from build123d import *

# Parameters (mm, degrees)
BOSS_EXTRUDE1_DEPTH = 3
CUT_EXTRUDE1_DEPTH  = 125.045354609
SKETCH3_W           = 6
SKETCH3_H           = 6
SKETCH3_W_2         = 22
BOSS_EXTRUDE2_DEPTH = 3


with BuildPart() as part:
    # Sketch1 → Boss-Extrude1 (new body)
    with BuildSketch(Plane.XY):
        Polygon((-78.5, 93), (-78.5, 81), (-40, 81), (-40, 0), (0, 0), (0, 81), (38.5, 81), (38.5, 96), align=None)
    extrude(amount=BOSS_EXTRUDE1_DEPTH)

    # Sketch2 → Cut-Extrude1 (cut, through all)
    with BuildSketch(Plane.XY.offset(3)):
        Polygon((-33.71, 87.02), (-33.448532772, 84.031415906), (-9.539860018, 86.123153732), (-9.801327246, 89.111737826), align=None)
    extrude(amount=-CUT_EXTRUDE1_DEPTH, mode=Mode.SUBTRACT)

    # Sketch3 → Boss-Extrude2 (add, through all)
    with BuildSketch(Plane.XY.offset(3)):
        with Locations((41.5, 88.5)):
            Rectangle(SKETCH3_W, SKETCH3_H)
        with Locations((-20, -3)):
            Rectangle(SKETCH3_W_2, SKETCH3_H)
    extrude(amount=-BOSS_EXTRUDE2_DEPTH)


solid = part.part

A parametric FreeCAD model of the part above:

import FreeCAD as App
import Part
import Sketcher

V = App.Vector
Q = App.Units.Quantity


def add_polygon(sketch, points):
    """Adds a closed chain of lines whose ends are joined by coincident constraints."""
    first, n = sketch.GeometryCount, len(points)
    for a, b in zip(points, points[1:] + points[:1]):
        sketch.addGeometry(Part.LineSegment(App.Vector(*a, 0), App.Vector(*b, 0)), False)
    for i in range(n):
        sketch.addConstraint(Sketcher.Constraint("Coincident", first + i, 2, first + (i + 1) % n, 1))

doc = App.newDocument("Part")
body = doc.addObject("PartDesign::Body", "Body")

# Sketch on XY plane
sketch1 = doc.addObject("Sketcher::SketchObject", "Sketch")
body.addObject(sketch1)
sketch1.AttachmentSupport = (doc.XY_Plane, [""])
sketch1.MapMode = "FlatFace"
add_polygon(sketch1, [(-78, 93), (-78, 81), (-40, 81), (-40, 0), (0, 0), (0, 81), (38, 81), (38, 96)])  # lines 0-7
sketch1.addConstraint(Sketcher.Constraint("Vertical", 0))
sketch1.addConstraint(Sketcher.Constraint("Horizontal", 1))
sketch1.addConstraint(Sketcher.Constraint("Vertical", 2))
sketch1.addConstraint(Sketcher.Constraint("Horizontal", 3))
sketch1.addConstraint(Sketcher.Constraint("Vertical", 4))
sketch1.addConstraint(Sketcher.Constraint("Horizontal", 5))
sketch1.addConstraint(Sketcher.Constraint("Vertical", 6))
sketch1.addConstraint(Sketcher.Constraint("Coincident", 3, 2, -1, 1))
sketch1.addConstraint(Sketcher.Constraint("Horizontal", 1, 2, 4, 2))
sketch1.addConstraint(Sketcher.Constraint("Equal", 1, 5))
sketch1.addConstraint(Sketcher.Constraint("DistanceX", 3, 1, 3, 2, Q("40 mm")))
sketch1.addConstraint(Sketcher.Constraint("DistanceY", 0, 2, 0, 1, Q("12 mm")))
sketch1.addConstraint(Sketcher.Constraint("DistanceY", 2, 2, 2, 1, Q("81 mm")))
sketch1.addConstraint(Sketcher.Constraint("DistanceY", 6, 1, 6, 2, Q("15 mm")))
sketch1.addConstraint(Sketcher.Constraint("DistanceX", 1, 1, 1, 2, Q("38.5 mm")))
pad1 = doc.addObject("PartDesign::Pad", "Pad")
body.addObject(pad1)
pad1.Profile = sketch1
pad1.Length = 3

# Sketch on XY plane
sketch2 = doc.addObject("Sketcher::SketchObject", "Sketch001")
body.addObject(sketch2)
sketch2.AttachmentSupport = (doc.XY_Plane, [""])
sketch2.MapMode = "FlatFace"
sketch2.AttachmentOffset = App.Placement(V(0, 0, 3), App.Rotation())
add_polygon(sketch2, [(-33.7, 87), (-33.4, 84), (-9.5, 86.1), (-9.8, 89.1)])  # lines 0-3
sketch2.addConstraint(Sketcher.Constraint("Perpendicular", 0, 1))
sketch2.addConstraint(Sketcher.Constraint("Perpendicular", 1, 2))
sketch2.addConstraint(Sketcher.Constraint("Perpendicular", 2, 3))
sketch2.addConstraint(Sketcher.Constraint("Angle", 0, Q("-85 deg")))
sketch2.addConstraint(Sketcher.Constraint("Distance", 0, Q("3 mm")))
sketch2.addConstraint(Sketcher.Constraint("Distance", 1, Q("24 mm")))
sketch2.addConstraint(Sketcher.Constraint("DistanceX", 3, 2, -1, 1, Q("33.71 mm")))
sketch2.addConstraint(Sketcher.Constraint("DistanceY", -1, 1, 3, 2, Q("87.02 mm")))
pocket1 = doc.addObject("PartDesign::Pocket", "Pocket")
body.addObject(pocket1)
pocket1.Profile = sketch2
pocket1.Type = "ThroughAll"

# Sketch on XY plane
sketch3 = doc.addObject("Sketcher::SketchObject", "Sketch002")
body.addObject(sketch3)
sketch3.AttachmentSupport = (doc.XY_Plane, [""])
sketch3.MapMode = "FlatFace"
sketch3.AttachmentOffset = App.Placement(V(0, 0, 3), App.Rotation())
add_polygon(sketch3, [(38, 92), (38, 86), (44, 86), (44, 92)])  # lines 0-3
add_polygon(sketch3, [(-31, 0), (-31, -6), (-9, -6), (-9, 0)])  # lines 4-7
sketch3.addConstraint(Sketcher.Constraint("Vertical", 0))
sketch3.addConstraint(Sketcher.Constraint("Horizontal", 1))
sketch3.addConstraint(Sketcher.Constraint("Vertical", 2))
sketch3.addConstraint(Sketcher.Constraint("Horizontal", 3))
sketch3.addConstraint(Sketcher.Constraint("Vertical", 4))
sketch3.addConstraint(Sketcher.Constraint("Horizontal", 5))
sketch3.addConstraint(Sketcher.Constraint("Vertical", 6))
sketch3.addConstraint(Sketcher.Constraint("Horizontal", 7))
sketch3.addConstraint(Sketcher.Constraint("PointOnObject", 6, 2, -1))
sketch3.addConstraint(Sketcher.Constraint("Equal", 3, 0))
sketch3.addConstraint(Sketcher.Constraint("Equal", 2, 4))
sketch3.addConstraint(Sketcher.Constraint("DistanceX", 1, 1, 1, 2, Q("6 mm")))
sketch3.addConstraint(Sketcher.Constraint("DistanceX", 5, 1, 5, 2, Q("22 mm")))
sketch3.addConstraint(Sketcher.Constraint("DistanceX", 4, 2, -1, 1, Q("31 mm")))
sketch3.addConstraint(Sketcher.Constraint("DistanceX", -1, 1, 0, 2, Q("38.5 mm")))
sketch3.addConstraint(Sketcher.Constraint("DistanceY", -1, 1, 0, 2, Q("85.5 mm")))
pad2 = doc.addObject("PartDesign::Pad", "Pad001")
body.addObject(pad2)
pad2.Profile = sketch3
pad2.Type = "UpToLast"
pad2.Reversed = True

doc.recompute()
